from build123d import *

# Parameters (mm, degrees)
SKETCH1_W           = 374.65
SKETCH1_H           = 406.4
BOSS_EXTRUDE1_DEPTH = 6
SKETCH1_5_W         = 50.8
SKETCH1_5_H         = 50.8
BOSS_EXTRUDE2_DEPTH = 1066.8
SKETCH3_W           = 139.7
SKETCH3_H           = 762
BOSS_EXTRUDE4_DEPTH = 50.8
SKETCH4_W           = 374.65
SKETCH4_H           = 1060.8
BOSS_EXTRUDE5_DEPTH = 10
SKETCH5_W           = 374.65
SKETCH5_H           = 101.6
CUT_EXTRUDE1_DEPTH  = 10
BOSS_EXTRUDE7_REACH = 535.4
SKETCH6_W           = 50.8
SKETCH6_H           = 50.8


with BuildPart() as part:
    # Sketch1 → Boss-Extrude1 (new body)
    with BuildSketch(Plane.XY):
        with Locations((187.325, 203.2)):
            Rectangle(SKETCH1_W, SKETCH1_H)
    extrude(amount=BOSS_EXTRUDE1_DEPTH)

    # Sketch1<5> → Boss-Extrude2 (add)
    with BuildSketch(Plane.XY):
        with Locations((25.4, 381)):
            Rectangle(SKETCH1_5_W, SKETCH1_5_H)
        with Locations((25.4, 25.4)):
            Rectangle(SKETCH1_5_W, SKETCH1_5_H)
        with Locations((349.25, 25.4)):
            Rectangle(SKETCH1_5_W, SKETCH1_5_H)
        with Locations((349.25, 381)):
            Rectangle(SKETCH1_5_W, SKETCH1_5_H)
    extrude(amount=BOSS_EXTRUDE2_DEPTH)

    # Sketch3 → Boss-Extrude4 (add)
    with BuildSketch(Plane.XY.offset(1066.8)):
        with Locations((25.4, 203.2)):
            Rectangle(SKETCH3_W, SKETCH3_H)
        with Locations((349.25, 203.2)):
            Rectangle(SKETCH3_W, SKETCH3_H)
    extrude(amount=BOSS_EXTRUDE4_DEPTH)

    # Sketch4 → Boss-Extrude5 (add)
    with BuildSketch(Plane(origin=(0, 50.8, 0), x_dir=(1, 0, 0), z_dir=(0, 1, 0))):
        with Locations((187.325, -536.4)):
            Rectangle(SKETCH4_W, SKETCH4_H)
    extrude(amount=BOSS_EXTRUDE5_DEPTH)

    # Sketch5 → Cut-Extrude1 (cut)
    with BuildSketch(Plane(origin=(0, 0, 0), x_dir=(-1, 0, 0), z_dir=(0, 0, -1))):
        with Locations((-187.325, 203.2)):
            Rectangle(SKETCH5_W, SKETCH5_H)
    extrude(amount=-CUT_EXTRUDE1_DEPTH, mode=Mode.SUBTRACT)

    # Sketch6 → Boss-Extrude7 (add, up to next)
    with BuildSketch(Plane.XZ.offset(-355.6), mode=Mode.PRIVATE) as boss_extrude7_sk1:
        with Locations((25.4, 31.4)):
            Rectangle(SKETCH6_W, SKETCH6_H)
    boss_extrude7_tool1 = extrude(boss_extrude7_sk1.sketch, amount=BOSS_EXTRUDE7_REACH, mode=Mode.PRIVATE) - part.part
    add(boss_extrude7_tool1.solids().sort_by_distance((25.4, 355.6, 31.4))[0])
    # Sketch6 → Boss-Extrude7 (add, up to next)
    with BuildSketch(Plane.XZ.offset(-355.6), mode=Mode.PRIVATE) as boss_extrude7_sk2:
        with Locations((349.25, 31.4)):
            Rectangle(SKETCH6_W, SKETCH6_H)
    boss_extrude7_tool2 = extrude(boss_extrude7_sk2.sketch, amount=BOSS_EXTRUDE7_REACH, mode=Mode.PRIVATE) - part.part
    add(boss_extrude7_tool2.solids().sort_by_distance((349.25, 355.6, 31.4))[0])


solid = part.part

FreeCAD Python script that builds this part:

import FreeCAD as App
import Part
import Sketcher
Q = App.Units.Quantity


def add_polygon(sketch, points):
    """Adds a closed chain of lines whose ends are joined by coincident constraints."""
    first, n = sketch.GeometryCount, len(points)
    for a, b in zip(points, points[1:] + points[:1]):
        sketch.addGeometry(Part.LineSegment(App.Vector(*a, 0), App.Vector(*b, 0)), False)
    for i in range(n):
        sketch.addConstraint(Sketcher.Constraint("Coincident", first + i, 2, first + (i + 1) % n, 1))

doc = App.newDocument("Part")
params = doc.addObject("Spreadsheet::Sheet", "Params")
for row, (alias, value) in enumerate([
    ("sketch1_height", "16 in"),
    ("sketch1_width", "14.75 in"),
    ("pad1_length", "6 mm"),
    ("sketch2_width", "2 in"),
    ("pad2_length", "42 in"),
    ("sketch3_height", "30 in"),
    ("sketch3_width", "5.5 in"),
    ("pad3_length", "2 in"),
    ("sketch4_width", "14.75 in"),
    ("pad4_length", "10 mm"),
    ("sketch5_height", "4 in"),
    ("sketch5_width", "14.75 in"),
    ("pocket1_length", "10 mm"),
    ("sketch6_width", "2 in"),
    ("sketch7_width", "2 in"),
], start=1):
    params.set(f"A{row}", alias)
    params.set(f"B{row}", "=" + value)
    params.setAlias(f"B{row}", alias)

body = doc.addObject("PartDesign::Body", "Body")

# Sketch on XY plane
sketch1 = body.newObject("Sketcher::SketchObject", "Sketch")
sketch1.AttachmentSupport = (doc.getObject("XY_Plane"), [""])
sketch1.MapMode = "FlatFace"
add_polygon(sketch1, [(0, 406.4), (0, 0), (374.65, 0), (374.65, 406.4)])  # lines 0-3
sketch1.addConstraint([
    Sketcher.Constraint("Vertical", 0),
    Sketcher.Constraint("Horizontal", 1),
    Sketcher.Constraint("Vertical", 2),
    Sketcher.Constraint("Horizontal", 3),
    Sketcher.Constraint("Coincident", 0, 2, -1, 1),
    Sketcher.Constraint("DistanceY", 0, 2, 0, 1, Q("16 in")),
    Sketcher.Constraint("DistanceX", 1, 1, 1, 2, Q("14.75 in")),
])
sketch1.setExpression("Constraints[9]", "Params.sketch1_height")
sketch1.setExpression("Constraints[10]", "Params.sketch1_width")
pad1 = body.newObject("PartDesign::Pad", "Pad")
pad1.Profile = sketch1
pad1.setExpression("Length", "Params.pad1_length")

# Sketch on XY plane
sketch2 = body.newObject("Sketcher::SketchObject", "Sketch001")
sketch2.AttachmentSupport = (doc.getObject("XY_Plane"), [""])
sketch2.MapMode = "FlatFace"
add_polygon(sketch2, [(0, 406.4), (0, 355.6), (50.8, 355.6), (50.8, 406.4)])  # lines 0-3
add_polygon(sketch2, [(0, 50.8), (0, 0), (50.8, 0), (50.8, 50.8)])  # lines 4-7
add_polygon(sketch2, [(323.85, 50.8), (323.85, 0), (374.65, 0), (374.65, 50.8)])  # lines 8-11
add_polygon(sketch2, [(323.85, 406.4), (323.85, 355.6), (374.65, 355.6), (374.65, 406.4)])  # lines 12-15
sketch2.addConstraint([
    Sketcher.Constraint("Vertical", 0),
    Sketcher.Constraint("Horizontal", 1),
    Sketcher.Constraint("Vertical", 2),
    Sketcher.Constraint("Horizontal", 3),
    Sketcher.Constraint("Vertical", 4),
    Sketcher.Constraint("Horizontal", 5),
    Sketcher.Constraint("Vertical", 6),
    Sketcher.Constraint("Horizontal", 7),
    Sketcher.Constraint("Vertical", 8),
    Sketcher.Constraint("Horizontal", 9),
    Sketcher.Constraint("Vertical", 10),
    Sketcher.Constraint("Horizontal", 11),
    Sketcher.Constraint("Vertical", 12),
    Sketcher.Constraint("Horizontal", 13),
    Sketcher.Constraint("Vertical", 14),
    Sketcher.Constraint("Horizontal", 15),
    Sketcher.Constraint("Coincident", 4, 2, -1, 1),
    Sketcher.Constraint("PointOnObject", 0, 2, -2),
    Sketcher.Constraint("PointOnObject", 8, 2, -1),
    Sketcher.Constraint("Horizontal", 7, 2, 10, 2),
    Sketcher.Constraint("Horizontal", 1, 2, 12, 2),
    Sketcher.Constraint("Horizontal", 3, 2, 14, 2),
    Sketcher.Constraint("Vertical", 2, 2, 5, 2),
    Sketcher.Constraint("Vertical", 11, 2, 12, 2),
    Sketcher.Constraint("Vertical", 10, 2, 13, 2),
    Sketcher.Constraint("Equal", 7, 9),
    Sketcher.Constraint("Equal", 15, 0),
    Sketcher.Constraint("Equal", 2, 4),
    Sketcher.Constraint("DistanceX", 1, 1, 1, 2, Q("2 in")),
    Sketcher.Constraint("DistanceY", -1, 1, 0, 2, Q("14 in")),
    Sketcher.Constraint("DistanceX", -1, 1, 8, 2, Q("12.75 in")),
])
sketch2.setExpression("Constraints[44]", "Params.sketch2_width")
pad2 = body.newObject("PartDesign::Pad", "Pad001")
pad2.Profile = sketch2
pad2.setExpression("Length", "Params.pad2_length")

# Sketch on XY plane
sketch3 = body.newObject("Sketcher::SketchObject", "Sketch002")
sketch3.AttachmentSupport = (doc.getObject("XY_Plane"), [""])
sketch3.MapMode = "FlatFace"
sketch3.AttachmentOffset = App.Placement(App.Vector(0, 0, 42 * 25.4), App.Rotation())
add_polygon(sketch3, [(-44.45, 584.2), (-44.45, -177.8), (95.25, -177.8), (95.25, 584.2)])  # lines 0-3
add_polygon(sketch3, [(279.4, 584.2), (279.4, -177.8), (419.1, -177.8), (419.1, 584.2)])  # lines 4-7
sketch3.addConstraint([
    Sketcher.Constraint("Vertical", 0),
    Sketcher.Constraint("Horizontal", 1),
    Sketcher.Constraint("Vertical", 2),
    Sketcher.Constraint("Horizontal", 3),
    Sketcher.Constraint("Vertical", 4),
    Sketcher.Constraint("Horizontal", 5),
    Sketcher.Constraint("Vertical", 6),
    Sketcher.Constraint("Horizontal", 7),
    Sketcher.Constraint("Horizontal", 1, 2, 4, 2),
    Sketcher.Constraint("Horizontal", 3, 2, 6, 2),
    Sketcher.Constraint("Equal", 3, 5),
    Sketcher.Constraint("DistanceY", 0, 2, 0, 1, Q("30 in")),
    Sketcher.Constraint("DistanceX", 1, 1, 1, 2, Q("5.5 in")),
    Sketcher.Constraint("DistanceY", 0, 2, -1, 1, Q("7 in")),
    Sketcher.Constraint("DistanceX", -1, 1, 4, 2, Q("11 in")),
    Sketcher.Constraint("DistanceX", 0, 2, -1, 1, Q("1.75 in")),
])
sketch3.setExpression("Constraints[19]", "Params.sketch3_height")
sketch3.setExpression("Constraints[20]", "Params.sketch3_width")
pad3 = body.newObject("PartDesign::Pad", "Pad002")
pad3.Profile = sketch3
pad3.setExpression("Length", "Params.pad3_length")

# Sketch on XZ plane
sketch4 = body.newObject("Sketcher::SketchObject", "Sketch003")
sketch4.AttachmentSupport = (doc.getObject("XZ_Plane"), [""])
sketch4.MapMode = "FlatFace"
sketch4.AttachmentOffset = App.Placement(App.Vector(0, 0, -2 * 25.4), App.Rotation())
add_polygon(sketch4, [(0, 6), (0, 1066.8), (374.65, 1066.8), (374.65, 6)])  # lines 0-3
sketch4.addConstraint([
    Sketcher.Constraint("Vertical", 0),
    Sketcher.Constraint("Horizontal", 1),
    Sketcher.Constraint("Vertical", 2),
    Sketcher.Constraint("Horizontal", 3),
    Sketcher.Constraint("PointOnObject", 0, 2, -2),
    Sketcher.Constraint("DistanceY", -1, 1, 0, 2, Q("42 in")),
    Sketcher.Constraint("DistanceX", 1, 1, 1, 2, Q("14.75 in")),
    Sketcher.Constraint("DistanceY", 0, 1, 0, 2, Q("1060.8 mm")),
])
sketch4.setExpression("Constraints[10]", "Params.sketch4_width")
pad4 = body.newObject("PartDesign::Pad", "Pad003")
pad4.Profile = sketch4
pad4.setExpression("Length", "Params.pad4_length")
pad4.Reversed = True

# Sketch on XY plane
sketch5 = body.newObject("Sketcher::SketchObject", "Sketch004")
sketch5.AttachmentSupport = (doc.getObject("XY_Plane"), [""])
sketch5.MapMode = "FlatFace"
add_polygon(sketch5, [(374.65, 254), (374.65, 152.4), (0, 152.4), (0, 254)])  # lines 0-3
sketch5.addConstraint([
    Sketcher.Constraint("Vertical", 0),
    Sketcher.Constraint("Horizontal", 1),
    Sketcher.Constraint("Vertical", 2),
    Sketcher.Constraint("Horizontal", 3),
    Sketcher.Constraint("PointOnObject", 1, 2, -2),
    Sketcher.Constraint("DistanceY", 0, 2, 0, 1, Q("4 in")),
    Sketcher.Constraint("DistanceY", -1, 1, 0, 2, Q("6 in")),
    Sketcher.Constraint("DistanceX", 1, 2, 1, 1, Q("14.75 in")),
])
sketch5.setExpression("Constraints[9]", "Params.sketch5_height")
sketch5.setExpression("Constraints[11]", "Params.sketch5_width")
pocket1 = body.newObject("PartDesign::Pocket", "Pocket")
pocket1.Profile = sketch5
pocket1.setExpression("Length", "Params.pocket1_length")
pocket1.Reversed = True

# Sketch on XZ plane
sketch6 = body.newObject("Sketcher::SketchObject", "Sketch005")
sketch6.AttachmentSupport = (doc.getObject("XZ_Plane"), [""])
sketch6.MapMode = "FlatFace"
sketch6.AttachmentOffset = App.Placement(App.Vector(0, 0, -14 * 25.4), App.Rotation())
add_polygon(sketch6, [(0, 56.8), (0, 6), (50.8, 6), (50.8, 56.8)])  # lines 0-3
sketch6.addConstraint([
    Sketcher.Constraint("Vertical", 0),
    Sketcher.Constraint("Horizontal", 1),
    Sketcher.Constraint("Vertical", 2),
    Sketcher.Constraint("Horizontal", 3),
    Sketcher.Constraint("PointOnObject", 0, 2, -2),
    Sketcher.Constraint("Equal", 3, 0),
    Sketcher.Constraint("DistanceX", 1, 1, 1, 2, Q("2 in")),
    Sketcher.Constraint("DistanceY", -1, 1, 0, 2, Q("6 mm")),
])
sketch6.setExpression("Constraints[10]", "Params.sketch6_width")
pad5 = body.newObject("PartDesign::Pad", "Pad004")
pad5.Profile = sketch6
pad5.Type = "UpToFirst"

# Sketch on XZ plane
sketch7 = body.newObject("Sketcher::SketchObject", "Sketch006")
sketch7.AttachmentSupport = (doc.getObject("XZ_Plane"), [""])
sketch7.MapMode = "FlatFace"
sketch7.AttachmentOffset = App.Placement(App.Vector(0, 0, -14 * 25.4), App.Rotation())
add_polygon(sketch7, [(323.85, 56.8), (323.85, 6), (374.65, 6), (374.65, 56.8)])  # lines 0-3
sketch7.addConstraint([
    Sketcher.Constraint("Vertical", 0),
    Sketcher.Constraint("Horizontal", 1),
    Sketcher.Constraint("Vertical", 2),
    Sketcher.Constraint("Horizontal", 3),
    Sketcher.Constraint("Equal", 3, 0),
    Sketcher.Constraint("DistanceX", 1, 1, 1, 2, Q("2 in")),
    Sketcher.Constraint("DistanceX", -1, 1, 0, 2, Q("12.75 in")),
    Sketcher.Constraint("DistanceY", -1, 1, 0, 2, Q("6 mm")),
])
sketch7.setExpression("Constraints[9]", "Params.sketch7_width")
pad6 = body.newObject("PartDesign::Pad", "Pad005")
pad6.Profile = sketch7
pad6.Type = "UpToFirst"

doc.recompute()
